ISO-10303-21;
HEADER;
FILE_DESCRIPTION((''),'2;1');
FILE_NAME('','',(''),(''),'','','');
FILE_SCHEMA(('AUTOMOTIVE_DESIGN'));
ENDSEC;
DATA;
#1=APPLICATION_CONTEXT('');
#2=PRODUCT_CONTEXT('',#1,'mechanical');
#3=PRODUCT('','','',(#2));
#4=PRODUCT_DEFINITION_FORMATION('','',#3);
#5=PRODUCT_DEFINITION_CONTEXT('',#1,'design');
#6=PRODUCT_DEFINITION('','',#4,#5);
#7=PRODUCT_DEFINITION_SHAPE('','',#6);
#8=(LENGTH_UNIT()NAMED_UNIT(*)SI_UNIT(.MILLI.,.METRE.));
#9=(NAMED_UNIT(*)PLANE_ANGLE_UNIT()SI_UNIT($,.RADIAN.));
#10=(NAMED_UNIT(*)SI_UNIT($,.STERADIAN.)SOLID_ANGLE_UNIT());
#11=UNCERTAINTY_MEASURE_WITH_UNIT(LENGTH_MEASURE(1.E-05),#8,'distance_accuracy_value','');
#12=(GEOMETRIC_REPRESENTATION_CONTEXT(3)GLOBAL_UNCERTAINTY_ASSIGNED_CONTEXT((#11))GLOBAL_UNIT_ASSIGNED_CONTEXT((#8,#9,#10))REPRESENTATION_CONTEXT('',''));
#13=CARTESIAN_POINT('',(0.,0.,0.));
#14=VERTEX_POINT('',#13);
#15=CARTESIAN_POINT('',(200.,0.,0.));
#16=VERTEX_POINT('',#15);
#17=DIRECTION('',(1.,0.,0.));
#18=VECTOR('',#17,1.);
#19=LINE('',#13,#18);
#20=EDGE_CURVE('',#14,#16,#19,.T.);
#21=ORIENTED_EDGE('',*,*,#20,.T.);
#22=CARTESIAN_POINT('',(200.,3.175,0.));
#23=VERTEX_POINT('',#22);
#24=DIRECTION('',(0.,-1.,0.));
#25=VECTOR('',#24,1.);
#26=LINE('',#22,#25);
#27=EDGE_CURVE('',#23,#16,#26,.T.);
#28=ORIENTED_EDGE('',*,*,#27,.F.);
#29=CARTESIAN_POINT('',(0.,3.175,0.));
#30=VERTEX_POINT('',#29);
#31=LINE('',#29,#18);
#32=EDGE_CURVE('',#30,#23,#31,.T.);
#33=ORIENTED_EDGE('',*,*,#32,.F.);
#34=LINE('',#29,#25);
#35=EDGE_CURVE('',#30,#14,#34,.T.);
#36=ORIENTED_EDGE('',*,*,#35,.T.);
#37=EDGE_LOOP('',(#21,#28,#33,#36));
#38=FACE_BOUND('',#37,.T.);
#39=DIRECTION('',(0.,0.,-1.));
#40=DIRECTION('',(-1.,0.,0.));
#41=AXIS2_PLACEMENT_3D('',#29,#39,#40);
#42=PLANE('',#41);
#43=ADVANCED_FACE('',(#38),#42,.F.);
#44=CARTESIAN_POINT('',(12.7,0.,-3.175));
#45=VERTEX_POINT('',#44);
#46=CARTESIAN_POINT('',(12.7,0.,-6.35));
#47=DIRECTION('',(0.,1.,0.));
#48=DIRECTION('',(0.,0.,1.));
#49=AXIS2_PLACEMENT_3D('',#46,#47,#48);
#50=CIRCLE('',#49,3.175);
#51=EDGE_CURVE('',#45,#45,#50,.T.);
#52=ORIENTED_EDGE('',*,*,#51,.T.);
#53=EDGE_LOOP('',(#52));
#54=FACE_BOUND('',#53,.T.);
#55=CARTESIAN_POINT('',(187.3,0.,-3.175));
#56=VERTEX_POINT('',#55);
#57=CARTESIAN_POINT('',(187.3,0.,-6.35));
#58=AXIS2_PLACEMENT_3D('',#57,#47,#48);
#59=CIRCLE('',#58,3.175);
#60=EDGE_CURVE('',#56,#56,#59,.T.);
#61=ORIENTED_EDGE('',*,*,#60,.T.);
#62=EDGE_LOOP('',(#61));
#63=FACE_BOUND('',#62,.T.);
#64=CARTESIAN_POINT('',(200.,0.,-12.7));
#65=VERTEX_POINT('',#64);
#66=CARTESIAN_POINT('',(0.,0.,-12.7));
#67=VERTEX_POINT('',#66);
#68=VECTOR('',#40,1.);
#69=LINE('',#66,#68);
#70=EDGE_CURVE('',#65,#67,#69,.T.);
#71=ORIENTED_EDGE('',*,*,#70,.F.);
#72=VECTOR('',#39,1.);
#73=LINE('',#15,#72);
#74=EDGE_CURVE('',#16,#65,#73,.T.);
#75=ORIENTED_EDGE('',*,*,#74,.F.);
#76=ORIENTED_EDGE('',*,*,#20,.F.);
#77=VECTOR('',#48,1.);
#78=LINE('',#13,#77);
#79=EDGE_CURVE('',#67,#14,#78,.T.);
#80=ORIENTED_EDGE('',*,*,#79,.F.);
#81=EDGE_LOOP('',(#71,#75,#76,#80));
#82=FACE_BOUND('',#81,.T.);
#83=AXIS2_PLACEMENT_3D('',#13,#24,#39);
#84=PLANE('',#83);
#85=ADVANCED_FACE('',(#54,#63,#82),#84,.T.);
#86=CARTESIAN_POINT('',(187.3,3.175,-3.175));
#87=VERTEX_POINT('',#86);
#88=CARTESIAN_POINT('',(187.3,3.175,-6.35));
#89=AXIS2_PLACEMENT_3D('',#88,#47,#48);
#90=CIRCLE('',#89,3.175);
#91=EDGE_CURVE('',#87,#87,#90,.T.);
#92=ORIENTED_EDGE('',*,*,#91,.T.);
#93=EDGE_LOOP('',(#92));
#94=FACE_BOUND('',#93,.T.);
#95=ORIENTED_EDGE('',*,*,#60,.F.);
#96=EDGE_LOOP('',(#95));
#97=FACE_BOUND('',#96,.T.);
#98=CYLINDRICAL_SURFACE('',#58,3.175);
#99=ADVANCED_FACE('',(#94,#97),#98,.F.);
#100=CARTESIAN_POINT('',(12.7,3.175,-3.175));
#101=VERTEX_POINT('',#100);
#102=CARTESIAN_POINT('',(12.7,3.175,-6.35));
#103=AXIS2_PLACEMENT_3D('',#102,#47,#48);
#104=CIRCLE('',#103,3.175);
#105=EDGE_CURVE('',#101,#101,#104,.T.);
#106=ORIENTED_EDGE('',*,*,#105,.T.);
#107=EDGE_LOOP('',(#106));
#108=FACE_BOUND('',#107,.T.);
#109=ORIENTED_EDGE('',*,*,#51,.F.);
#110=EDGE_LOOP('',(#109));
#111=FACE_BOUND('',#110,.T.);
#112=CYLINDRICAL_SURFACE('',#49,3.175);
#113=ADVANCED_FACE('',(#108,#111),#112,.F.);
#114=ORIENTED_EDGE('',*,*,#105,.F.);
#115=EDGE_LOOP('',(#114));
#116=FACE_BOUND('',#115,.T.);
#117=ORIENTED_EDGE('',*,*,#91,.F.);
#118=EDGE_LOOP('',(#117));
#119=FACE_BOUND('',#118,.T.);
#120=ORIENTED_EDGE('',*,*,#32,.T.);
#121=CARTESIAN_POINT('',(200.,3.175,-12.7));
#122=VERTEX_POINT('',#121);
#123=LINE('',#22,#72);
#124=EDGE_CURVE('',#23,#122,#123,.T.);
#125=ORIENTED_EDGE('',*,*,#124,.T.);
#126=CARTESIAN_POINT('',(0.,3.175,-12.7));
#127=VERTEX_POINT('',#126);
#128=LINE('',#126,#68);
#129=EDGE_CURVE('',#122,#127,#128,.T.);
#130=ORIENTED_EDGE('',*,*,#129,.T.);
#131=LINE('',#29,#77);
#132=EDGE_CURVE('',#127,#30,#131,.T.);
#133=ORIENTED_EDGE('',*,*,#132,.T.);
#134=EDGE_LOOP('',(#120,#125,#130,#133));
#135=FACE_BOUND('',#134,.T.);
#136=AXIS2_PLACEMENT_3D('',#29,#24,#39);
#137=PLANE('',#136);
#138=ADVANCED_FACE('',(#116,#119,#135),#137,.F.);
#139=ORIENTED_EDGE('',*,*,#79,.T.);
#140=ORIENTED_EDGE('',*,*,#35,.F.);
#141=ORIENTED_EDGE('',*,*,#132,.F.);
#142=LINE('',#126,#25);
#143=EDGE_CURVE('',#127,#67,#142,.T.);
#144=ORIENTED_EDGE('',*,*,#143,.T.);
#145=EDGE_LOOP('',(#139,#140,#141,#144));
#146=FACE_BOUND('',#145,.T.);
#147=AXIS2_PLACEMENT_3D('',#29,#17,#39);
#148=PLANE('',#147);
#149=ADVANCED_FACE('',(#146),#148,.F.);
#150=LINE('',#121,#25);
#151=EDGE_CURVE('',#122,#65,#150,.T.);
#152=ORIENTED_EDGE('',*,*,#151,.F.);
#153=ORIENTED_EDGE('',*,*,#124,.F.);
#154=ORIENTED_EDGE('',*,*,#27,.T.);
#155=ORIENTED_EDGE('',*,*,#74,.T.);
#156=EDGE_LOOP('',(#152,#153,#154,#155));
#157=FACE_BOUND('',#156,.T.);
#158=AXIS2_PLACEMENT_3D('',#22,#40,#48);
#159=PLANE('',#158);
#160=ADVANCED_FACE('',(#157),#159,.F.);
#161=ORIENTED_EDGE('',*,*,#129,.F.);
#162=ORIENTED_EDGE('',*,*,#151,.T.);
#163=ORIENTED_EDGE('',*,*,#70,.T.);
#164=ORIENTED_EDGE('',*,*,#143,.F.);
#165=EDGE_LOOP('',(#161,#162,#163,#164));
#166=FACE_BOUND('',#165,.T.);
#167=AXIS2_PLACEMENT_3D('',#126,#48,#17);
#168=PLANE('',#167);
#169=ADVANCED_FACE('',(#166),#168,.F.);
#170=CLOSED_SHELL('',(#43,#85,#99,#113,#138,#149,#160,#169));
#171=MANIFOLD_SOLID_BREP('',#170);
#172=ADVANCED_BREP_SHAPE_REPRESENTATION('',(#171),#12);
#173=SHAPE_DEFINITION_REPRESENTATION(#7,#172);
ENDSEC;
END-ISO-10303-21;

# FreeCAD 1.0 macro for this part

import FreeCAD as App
import Part
import Sketcher
Q = App.Units.Quantity

doc = App.newDocument("Part")
body = doc.addObject("PartDesign::Body", "Body")

# Sketch on XZ plane
sketch1 = body.newObject("Sketcher::SketchObject", "Sketch")
sketch1.AttachmentSupport = (doc.getObject("XZ_Plane"), [""])
sketch1.MapMode = "FlatFace"
sketch1.addGeometry([
    Part.LineSegment(App.Vector(0, -13, 0), App.Vector(0, 0, 0)),
    Part.LineSegment(App.Vector(0, 0, 0), App.Vector(200, 0, 0)),
    Part.LineSegment(App.Vector(200, 0, 0), App.Vector(200, -13, 0)),
    Part.LineSegment(App.Vector(200, -13, 0), App.Vector(0, -13, 0)),
], False)
sketch1.addConstraint([
    Sketcher.Constraint("Coincident", 0, 2, 1, 1),
    Sketcher.Constraint("Coincident", 1, 2, 2, 1),
    Sketcher.Constraint("Coincident", 2, 2, 3, 1),
    Sketcher.Constraint("Coincident", 3, 2, 0, 1),
    Sketcher.Constraint("Vertical", 0),
    Sketcher.Constraint("Horizontal", 1),
    Sketcher.Constraint("Vertical", 2),
    Sketcher.Constraint("Horizontal", 3),
    Sketcher.Constraint("Coincident", 0, 2, -1, 1),
    Sketcher.Constraint("DistanceY", 0, 1, 0, 2, Q("0.5 in")),
    Sketcher.Constraint("DistanceX", 1, 1, 1, 2, 200.0),
])
pad1 = body.newObject("PartDesign::Pad", "Pad")
pad1.Profile = sketch1
pad1.Length = Q("0.125 in")
pad1.Reversed = True

# Sketch on XZ plane
sketch2 = body.newObject("Sketcher::SketchObject", "Sketch001")
sketch2.AttachmentSupport = (doc.getObject("XZ_Plane"), [""])
sketch2.MapMode = "FlatFace"
sketch2.AttachmentOffset = App.Placement(App.Vector(0, 0, -0.125 * 25.4), App.Rotation())
sketch2.addGeometry([
    Part.Circle(App.Vector(12.7, -6.3, 0), App.Vector(0, 0, 1), 3.2),
    Part.Circle(App.Vector(187.3, -6.3, 0), App.Vector(0, 0, 1), 3.2),
], False)
sketch2.addConstraint([
    Sketcher.Constraint("Equal", 0, 1),
    Sketcher.Constraint("Horizontal", 0, 3, 1, 3),
    Sketcher.Constraint("Diameter", 0, Q("0.25 in")),
    Sketcher.Constraint("DistanceX", -1, 1, 0, 3, Q("0.5 in")),
    Sketcher.Constraint("DistanceY", 0, 3, -1, 1, Q("0.25 in")),
    Sketcher.Constraint("DistanceX", -1, 1, 1, 3, 187.3),
])
pocket1 = body.newObject("PartDesign::Pocket", "Pocket")
pocket1.Profile = sketch2
pocket1.Type = "ThroughAll"
pocket1.Reversed = True

doc.recompute()
